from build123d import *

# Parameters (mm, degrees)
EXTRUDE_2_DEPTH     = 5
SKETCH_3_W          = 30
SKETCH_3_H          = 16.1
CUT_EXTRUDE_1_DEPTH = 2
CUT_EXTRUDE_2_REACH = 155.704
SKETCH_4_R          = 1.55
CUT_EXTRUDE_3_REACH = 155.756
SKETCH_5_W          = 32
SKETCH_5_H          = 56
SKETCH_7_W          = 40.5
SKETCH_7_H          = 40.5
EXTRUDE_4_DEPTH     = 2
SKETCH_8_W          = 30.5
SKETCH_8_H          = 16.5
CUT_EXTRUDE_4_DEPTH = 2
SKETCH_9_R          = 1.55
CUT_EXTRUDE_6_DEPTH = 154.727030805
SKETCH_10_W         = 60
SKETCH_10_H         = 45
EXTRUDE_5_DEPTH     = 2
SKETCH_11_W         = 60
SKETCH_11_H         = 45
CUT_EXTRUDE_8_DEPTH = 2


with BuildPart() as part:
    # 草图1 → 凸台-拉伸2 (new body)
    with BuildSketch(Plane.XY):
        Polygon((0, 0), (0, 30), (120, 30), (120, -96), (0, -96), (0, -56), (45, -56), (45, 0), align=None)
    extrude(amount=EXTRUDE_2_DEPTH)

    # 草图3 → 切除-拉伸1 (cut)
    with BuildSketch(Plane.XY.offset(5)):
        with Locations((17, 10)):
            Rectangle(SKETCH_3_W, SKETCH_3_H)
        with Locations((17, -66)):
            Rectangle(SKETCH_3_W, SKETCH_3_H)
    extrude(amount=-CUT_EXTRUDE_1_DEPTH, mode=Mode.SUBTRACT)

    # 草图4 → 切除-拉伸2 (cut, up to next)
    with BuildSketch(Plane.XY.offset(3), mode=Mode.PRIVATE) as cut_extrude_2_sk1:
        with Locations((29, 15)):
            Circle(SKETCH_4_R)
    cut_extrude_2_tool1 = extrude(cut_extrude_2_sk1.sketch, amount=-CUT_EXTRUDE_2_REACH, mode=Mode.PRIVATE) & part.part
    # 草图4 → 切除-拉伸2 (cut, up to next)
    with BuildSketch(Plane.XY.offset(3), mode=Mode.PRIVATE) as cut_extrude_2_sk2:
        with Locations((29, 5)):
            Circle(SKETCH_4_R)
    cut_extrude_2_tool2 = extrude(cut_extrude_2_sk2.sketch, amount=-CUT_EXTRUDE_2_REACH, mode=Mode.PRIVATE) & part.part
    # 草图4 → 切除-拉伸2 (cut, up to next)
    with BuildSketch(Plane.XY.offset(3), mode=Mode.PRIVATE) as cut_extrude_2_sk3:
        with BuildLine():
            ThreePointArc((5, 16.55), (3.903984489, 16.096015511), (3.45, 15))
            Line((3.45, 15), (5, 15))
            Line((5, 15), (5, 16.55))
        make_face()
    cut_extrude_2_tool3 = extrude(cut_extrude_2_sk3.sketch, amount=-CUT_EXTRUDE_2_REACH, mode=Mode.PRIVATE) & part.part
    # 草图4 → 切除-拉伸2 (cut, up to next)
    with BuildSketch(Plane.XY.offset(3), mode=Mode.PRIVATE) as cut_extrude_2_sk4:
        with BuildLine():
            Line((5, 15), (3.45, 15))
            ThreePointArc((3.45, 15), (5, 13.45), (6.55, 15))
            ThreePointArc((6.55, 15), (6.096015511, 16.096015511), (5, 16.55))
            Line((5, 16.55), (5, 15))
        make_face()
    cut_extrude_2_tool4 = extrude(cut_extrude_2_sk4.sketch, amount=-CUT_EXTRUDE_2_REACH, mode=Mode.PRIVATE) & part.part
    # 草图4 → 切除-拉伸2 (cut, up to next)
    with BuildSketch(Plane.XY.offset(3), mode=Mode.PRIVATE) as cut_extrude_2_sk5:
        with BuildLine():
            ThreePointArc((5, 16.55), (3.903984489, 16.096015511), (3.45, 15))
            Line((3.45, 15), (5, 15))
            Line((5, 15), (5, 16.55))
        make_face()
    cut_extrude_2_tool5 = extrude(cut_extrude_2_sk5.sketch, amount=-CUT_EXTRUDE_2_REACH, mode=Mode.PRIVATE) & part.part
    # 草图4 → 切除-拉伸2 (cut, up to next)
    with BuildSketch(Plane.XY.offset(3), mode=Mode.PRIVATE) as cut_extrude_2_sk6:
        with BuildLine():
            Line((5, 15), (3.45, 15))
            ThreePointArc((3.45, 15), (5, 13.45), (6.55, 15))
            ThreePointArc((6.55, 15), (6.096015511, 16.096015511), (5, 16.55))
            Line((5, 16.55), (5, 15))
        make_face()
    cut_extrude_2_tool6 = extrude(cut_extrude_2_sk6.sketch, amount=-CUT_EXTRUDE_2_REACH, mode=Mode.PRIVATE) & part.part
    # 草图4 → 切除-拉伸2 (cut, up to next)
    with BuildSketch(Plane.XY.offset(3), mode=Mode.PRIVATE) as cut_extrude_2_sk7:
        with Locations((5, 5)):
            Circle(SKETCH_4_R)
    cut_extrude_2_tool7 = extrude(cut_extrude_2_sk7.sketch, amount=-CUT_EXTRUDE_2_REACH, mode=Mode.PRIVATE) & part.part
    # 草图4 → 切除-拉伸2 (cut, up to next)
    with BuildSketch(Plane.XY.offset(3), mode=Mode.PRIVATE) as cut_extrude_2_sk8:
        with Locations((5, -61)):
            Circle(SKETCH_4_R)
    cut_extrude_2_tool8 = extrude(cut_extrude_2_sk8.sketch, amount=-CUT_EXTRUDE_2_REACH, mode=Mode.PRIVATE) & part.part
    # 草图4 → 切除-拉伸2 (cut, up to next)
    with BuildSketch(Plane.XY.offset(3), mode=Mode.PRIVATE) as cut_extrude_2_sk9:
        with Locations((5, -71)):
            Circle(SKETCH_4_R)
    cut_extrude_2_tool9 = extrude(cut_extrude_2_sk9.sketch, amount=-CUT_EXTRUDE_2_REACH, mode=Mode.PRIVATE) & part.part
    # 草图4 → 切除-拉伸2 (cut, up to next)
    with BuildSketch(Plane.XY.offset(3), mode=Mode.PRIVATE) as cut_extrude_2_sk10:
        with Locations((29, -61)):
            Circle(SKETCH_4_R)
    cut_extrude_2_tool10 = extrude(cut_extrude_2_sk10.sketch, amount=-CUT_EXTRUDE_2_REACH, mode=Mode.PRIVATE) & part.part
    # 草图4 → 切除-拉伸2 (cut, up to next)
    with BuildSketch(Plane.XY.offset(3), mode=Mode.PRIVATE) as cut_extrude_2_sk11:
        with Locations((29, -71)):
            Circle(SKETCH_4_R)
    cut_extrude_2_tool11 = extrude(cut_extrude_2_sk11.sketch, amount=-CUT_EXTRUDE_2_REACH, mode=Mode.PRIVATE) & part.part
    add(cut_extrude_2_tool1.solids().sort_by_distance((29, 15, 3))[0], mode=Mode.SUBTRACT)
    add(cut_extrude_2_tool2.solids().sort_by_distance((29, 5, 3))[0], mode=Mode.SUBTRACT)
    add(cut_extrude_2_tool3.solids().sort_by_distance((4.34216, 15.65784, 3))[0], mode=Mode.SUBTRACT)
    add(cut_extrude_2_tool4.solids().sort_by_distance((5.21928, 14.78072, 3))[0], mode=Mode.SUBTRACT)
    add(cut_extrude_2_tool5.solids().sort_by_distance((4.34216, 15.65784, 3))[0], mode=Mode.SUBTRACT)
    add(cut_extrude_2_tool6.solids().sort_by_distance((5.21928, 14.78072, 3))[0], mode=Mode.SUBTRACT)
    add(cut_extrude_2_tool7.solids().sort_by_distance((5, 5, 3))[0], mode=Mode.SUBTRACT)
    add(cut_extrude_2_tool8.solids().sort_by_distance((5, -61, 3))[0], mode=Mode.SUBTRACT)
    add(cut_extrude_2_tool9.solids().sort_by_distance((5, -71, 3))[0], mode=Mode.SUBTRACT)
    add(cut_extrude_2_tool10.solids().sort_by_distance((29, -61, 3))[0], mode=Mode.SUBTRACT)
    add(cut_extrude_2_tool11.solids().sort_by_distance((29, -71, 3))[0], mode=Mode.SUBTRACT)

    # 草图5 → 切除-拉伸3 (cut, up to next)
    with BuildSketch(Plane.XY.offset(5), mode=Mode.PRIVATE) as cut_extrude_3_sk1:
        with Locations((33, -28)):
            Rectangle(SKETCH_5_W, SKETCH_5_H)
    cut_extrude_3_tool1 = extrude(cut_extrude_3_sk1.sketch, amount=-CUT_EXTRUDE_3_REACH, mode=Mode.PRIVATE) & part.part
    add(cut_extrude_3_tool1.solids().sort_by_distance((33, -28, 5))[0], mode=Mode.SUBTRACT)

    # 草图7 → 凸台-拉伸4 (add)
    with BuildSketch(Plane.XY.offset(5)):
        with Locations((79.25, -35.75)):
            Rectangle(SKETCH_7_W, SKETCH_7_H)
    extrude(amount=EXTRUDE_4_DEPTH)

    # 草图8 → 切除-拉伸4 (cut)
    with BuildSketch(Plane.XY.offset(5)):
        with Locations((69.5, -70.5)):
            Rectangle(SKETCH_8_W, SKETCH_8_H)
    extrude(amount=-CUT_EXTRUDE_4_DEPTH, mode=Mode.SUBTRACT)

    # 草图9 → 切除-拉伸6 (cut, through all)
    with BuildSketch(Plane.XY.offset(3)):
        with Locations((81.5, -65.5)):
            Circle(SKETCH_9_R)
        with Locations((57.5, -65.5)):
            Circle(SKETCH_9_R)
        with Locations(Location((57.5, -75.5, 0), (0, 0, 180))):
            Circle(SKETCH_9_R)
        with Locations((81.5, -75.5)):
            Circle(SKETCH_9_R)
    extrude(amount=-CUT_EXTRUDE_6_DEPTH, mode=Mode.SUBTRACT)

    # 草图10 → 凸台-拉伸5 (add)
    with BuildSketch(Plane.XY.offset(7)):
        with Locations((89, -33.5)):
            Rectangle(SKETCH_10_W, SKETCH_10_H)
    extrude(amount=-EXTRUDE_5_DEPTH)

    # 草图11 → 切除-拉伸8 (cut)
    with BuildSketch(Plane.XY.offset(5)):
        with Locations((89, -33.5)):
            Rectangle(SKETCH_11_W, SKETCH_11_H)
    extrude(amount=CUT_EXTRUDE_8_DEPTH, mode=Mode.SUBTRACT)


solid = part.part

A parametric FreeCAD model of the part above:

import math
import FreeCAD as App
import Part
import Sketcher
from FreeCAD import Vector
Q = App.Units.Quantity

doc = App.newDocument("Part")
body = doc.addObject("PartDesign::Body", "Body")

# Sketch on XY plane
sketch1 = doc.addObject("Sketcher::SketchObject", "Sketch")
body.addObject(sketch1)
sketch1.AttachmentSupport = (doc.XY_Plane, [""])
sketch1.MapMode = "FlatFace"
sketch1.addGeometry([
    Part.LineSegment(Vector(0, 30, 0), Vector(0, 0, 0)),  # 0
    Part.LineSegment(Vector(0, 0, 0), Vector(45, 0, 0)),  # 1
    Part.LineSegment(Vector(45, 0, 0), Vector(45, -56, 0)),  # 2
    Part.LineSegment(Vector(45, -56, 0), Vector(0, -56, 0)),  # 3
    Part.LineSegment(Vector(0, -56, 0), Vector(0, -96, 0)),  # 4
    Part.LineSegment(Vector(0, -96, 0), Vector(120, -96, 0)),  # 5
    Part.LineSegment(Vector(120, -96, 0), Vector(120, 30, 0)),  # 6
    Part.LineSegment(Vector(120, 30, 0), Vector(0, 30, 0)),  # 7
], False)
sketch1.addConstraint([
    Sketcher.Constraint("Coincident", 0, 2, 1, 1),
    Sketcher.Constraint("Coincident", 1, 2, 2, 1),
    Sketcher.Constraint("Coincident", 2, 2, 3, 1),
    Sketcher.Constraint("Coincident", 3, 2, 4, 1),
    Sketcher.Constraint("Coincident", 4, 2, 5, 1),
    Sketcher.Constraint("Coincident", 5, 2, 6, 1),
    Sketcher.Constraint("Coincident", 6, 2, 7, 1),
    Sketcher.Constraint("Coincident", 7, 2, 0, 1),
    Sketcher.Constraint("Vertical", 0),
    Sketcher.Constraint("Horizontal", 1),
    Sketcher.Constraint("Vertical", 2),
    Sketcher.Constraint("Horizontal", 3),
    Sketcher.Constraint("Vertical", 4),
    Sketcher.Constraint("Horizontal", 5),
    Sketcher.Constraint("Vertical", 6),
    Sketcher.Constraint("Horizontal", 7),
    Sketcher.Constraint("Coincident", 0, 2, -1, 1),
    Sketcher.Constraint("PointOnObject", 3, 2, -2),
    Sketcher.Constraint("DistanceX", 1, 1, 1, 2, Q("45 mm")),
    Sketcher.Constraint("DistanceX", 5, 1, 5, 2, Q("120 mm")),
    Sketcher.Constraint("DistanceY", 0, 2, 0, 1, Q("30 mm")),
    Sketcher.Constraint("DistanceY", 2, 2, 2, 1, Q("56 mm")),
    Sketcher.Constraint("DistanceY", 4, 2, 4, 1, Q("40 mm")),
])
pad1 = doc.addObject("PartDesign::Pad", "Pad")
body.addObject(pad1)
pad1.Profile = sketch1
pad1.Length = 5

# Sketch on XY plane
sketch2 = doc.addObject("Sketcher::SketchObject", "Sketch001")
body.addObject(sketch2)
sketch2.AttachmentSupport = (doc.XY_Plane, [""])
sketch2.MapMode = "FlatFace"
sketch2.AttachmentOffset = App.Placement(Vector(0, 0, 5), App.Rotation())
sketch2.addGeometry([
    Part.LineSegment(Vector(2, 18.05, 0), Vector(2, 1.95, 0)),  # 0
    Part.LineSegment(Vector(2, 1.95, 0), Vector(32, 1.95, 0)),  # 1
    Part.LineSegment(Vector(32, 1.95, 0), Vector(32, 18.05, 0)),  # 2
    Part.LineSegment(Vector(32, 18.05, 0), Vector(2, 18.05, 0)),  # 3
    Part.LineSegment(Vector(2, -57.95, 0), Vector(2, -74.05, 0)),  # 4
    Part.LineSegment(Vector(2, -74.05, 0), Vector(32, -74.05, 0)),  # 5
    Part.LineSegment(Vector(32, -74.05, 0), Vector(32, -57.95, 0)),  # 6
    Part.LineSegment(Vector(32, -57.95, 0), Vector(2, -57.95, 0)),  # 7
], False)
sketch2.addConstraint([
    Sketcher.Constraint("Coincident", 0, 2, 1, 1),
    Sketcher.Constraint("Coincident", 1, 2, 2, 1),
    Sketcher.Constraint("Coincident", 2, 2, 3, 1),
    Sketcher.Constraint("Coincident", 3, 2, 0, 1),
    Sketcher.Constraint("Coincident", 4, 2, 5, 1),
    Sketcher.Constraint("Coincident", 5, 2, 6, 1),
    Sketcher.Constraint("Coincident", 6, 2, 7, 1),
    Sketcher.Constraint("Coincident", 7, 2, 4, 1),
    Sketcher.Constraint("Vertical", 0),
    Sketcher.Constraint("Horizontal", 1),
    Sketcher.Constraint("Vertical", 2),
    Sketcher.Constraint("Horizontal", 3),
    Sketcher.Constraint("Vertical", 4),
    Sketcher.Constraint("Horizontal", 5),
    Sketcher.Constraint("Vertical", 6),
    Sketcher.Constraint("Horizontal", 7),
    Sketcher.Constraint("Vertical", 3, 2, 4, 2),
    Sketcher.Constraint("Vertical", 2, 2, 5, 2),
    Sketcher.Constraint("Equal", 2, 4),
    Sketcher.Constraint("DistanceX", 1, 1, 1, 2, Q("30 mm")),
    Sketcher.Constraint("DistanceY", 0, 2, 0, 1, Q("16.1 mm")),
    Sketcher.Constraint("DistanceX", -1, 1, 0, 2, Q("2 mm")),
    Sketcher.Constraint("DistanceY", 4, 2, 0, 2, Q("76 mm")),
    Sketcher.Constraint("DistanceY", -1, 1, 0, 2, Q("1.95 mm")),
])
pocket1 = doc.addObject("PartDesign::Pocket", "Pocket")
body.addObject(pocket1)
pocket1.Profile = sketch2
pocket1.Length = 2

# Sketch on XY plane
sketch3 = doc.addObject("Sketcher::SketchObject", "Sketch002")
body.addObject(sketch3)
sketch3.AttachmentSupport = (doc.XY_Plane, [""])
sketch3.MapMode = "FlatFace"
sketch3.AttachmentOffset = App.Placement(Vector(0, 0, 3), App.Rotation())
sketch3.addGeometry(Part.Circle(Vector(29, 15, 0), Vector(0, 0, 1), 1.55), False)
sketch3.addConstraint([
    Sketcher.Constraint("Diameter", 0, Q("3.1 mm")),
    Sketcher.Constraint("DistanceX", -1, 1, 0, 3, Q("29 mm")),
    Sketcher.Constraint("DistanceY", -1, 1, 0, 3, Q("15 mm")),
])
pocket2 = doc.addObject("PartDesign::Pocket", "Pocket001")
body.addObject(pocket2)
pocket2.Profile = sketch3
pocket2.Type = "UpToFirst"

# Sketch on XY plane
sketch4 = doc.addObject("Sketcher::SketchObject", "Sketch003")
body.addObject(sketch4)
sketch4.AttachmentSupport = (doc.XY_Plane, [""])
sketch4.MapMode = "FlatFace"
sketch4.AttachmentOffset = App.Placement(Vector(0, 0, 3), App.Rotation())
sketch4.addGeometry(Part.Circle(Vector(29, 5, 0), Vector(0, 0, 1), 1.55), False)
sketch4.addConstraint([
    Sketcher.Constraint("Diameter", 0, Q("3.1 mm")),
    Sketcher.Constraint("DistanceX", -1, 1, 0, 3, Q("29 mm")),
    Sketcher.Constraint("DistanceY", -1, 1, 0, 3, Q("5 mm")),
])
pocket3 = doc.addObject("PartDesign::Pocket", "Pocket002")
body.addObject(pocket3)
pocket3.Profile = sketch4
pocket3.Type = "UpToFirst"

# Sketch on XY plane
sketch5 = doc.addObject("Sketcher::SketchObject", "Sketch004")
body.addObject(sketch5)
sketch5.AttachmentSupport = (doc.XY_Plane, [""])
sketch5.MapMode = "FlatFace"
sketch5.AttachmentOffset = App.Placement(Vector(0, 0, 3), App.Rotation())
sketch5.addGeometry([
    Part.ArcOfCircle(Part.Circle(Vector(5, 15, 0), Vector(0, 0, 1), 1.55), math.radians(90), math.radians(180)),
    Part.LineSegment(Vector(3.45, 15, 0), Vector(5, 15, 0)),
    Part.LineSegment(Vector(5, 15, 0), Vector(5, 16.55, 0)),
], False)
sketch5.addConstraint([
    Sketcher.Constraint("Coincident", 0, 2, 1, 1),
    Sketcher.Constraint("Coincident", 1, 2, 2, 1),
    Sketcher.Constraint("Coincident", 2, 2, 0, 1),
    Sketcher.Constraint("Horizontal", 1),
    Sketcher.Constraint("Vertical", 2),
    Sketcher.Constraint("Coincident", 1, 2, 0, 3),
    Sketcher.Constraint("Radius", 0, Q("1.55 mm")),
    Sketcher.Constraint("DistanceX", -1, 1, 0, 3, Q("5 mm")),
    Sketcher.Constraint("DistanceY", -1, 1, 0, 3, Q("15 mm")),
])
pocket4 = doc.addObject("PartDesign::Pocket", "Pocket003")
body.addObject(pocket4)
pocket4.Profile = sketch5
pocket4.Type = "UpToFirst"

# Sketch on XY plane
sketch6 = doc.addObject("Sketcher::SketchObject", "Sketch005")
body.addObject(sketch6)
sketch6.AttachmentSupport = (doc.XY_Plane, [""])
sketch6.MapMode = "FlatFace"
sketch6.AttachmentOffset = App.Placement(Vector(0, 0, 3), App.Rotation())
sketch6.addGeometry([
    Part.LineSegment(Vector(5, 15, 0), Vector(3.45, 15, 0)),
    Part.ArcOfCircle(Part.Circle(Vector(5, 15, 0), Vector(0, 0, 1), 1.55), math.radians(180), math.radians(360)),
    Part.ArcOfCircle(Part.Circle(Vector(5, 15, 0), Vector(0, 0, 1), 1.55), math.radians(0), math.radians(90)),
    Part.LineSegment(Vector(5, 16.55, 0), Vector(5, 15, 0)),
], False)
sketch6.addConstraint([
    Sketcher.Constraint("Coincident", 0, 2, 1, 1),
    Sketcher.Constraint("Tangent", 1, 2, 2, 1),
    Sketcher.Constraint("Coincident", 2, 2, 3, 1),
    Sketcher.Constraint("Coincident", 3, 2, 0, 1),
    Sketcher.Constraint("Horizontal", 0),
    Sketcher.Constraint("Vertical", 3),
    Sketcher.Constraint("Coincident", 3, 2, 1, 3),
    Sketcher.Constraint("Equal", 1, 2),
    Sketcher.Constraint("Horizontal", 0, 2, 1, 2),
    Sketcher.Constraint("Radius", 1, Q("1.55 mm")),
    Sketcher.Constraint("DistanceX", -1, 1, 1, 3, Q("5 mm")),
    Sketcher.Constraint("DistanceY", -1, 1, 1, 3, Q("15 mm")),
])
pocket5 = doc.addObject("PartDesign::Pocket", "Pocket004")
body.addObject(pocket5)
pocket5.Profile = sketch6
pocket5.Type = "UpToFirst"

# Sketch on XY plane
sketch7 = doc.addObject("Sketcher::SketchObject", "Sketch006")
body.addObject(sketch7)
sketch7.AttachmentSupport = (doc.XY_Plane, [""])
sketch7.MapMode = "FlatFace"
sketch7.AttachmentOffset = App.Placement(Vector(0, 0, 3), App.Rotation())
sketch7.addGeometry([
    Part.ArcOfCircle(Part.Circle(Vector(5, 15, 0), Vector(0, 0, 1), 1.55), math.radians(90), math.radians(180)),
    Part.LineSegment(Vector(3.45, 15, 0), Vector(5, 15, 0)),
    Part.LineSegment(Vector(5, 15, 0), Vector(5, 16.55, 0)),
], False)
sketch7.addConstraint([
    Sketcher.Constraint("Coincident", 0, 2, 1, 1),
    Sketcher.Constraint("Coincident", 1, 2, 2, 1),
    Sketcher.Constraint("Coincident", 2, 2, 0, 1),
    Sketcher.Constraint("Horizontal", 1),
    Sketcher.Constraint("Vertical", 2),
    Sketcher.Constraint("Coincident", 1, 2, 0, 3),
    Sketcher.Constraint("Radius", 0, Q("1.55 mm")),
    Sketcher.Constraint("DistanceX", -1, 1, 0, 3, Q("5 mm")),
    Sketcher.Constraint("DistanceY", -1, 1, 0, 3, Q("15 mm")),
])
pocket6 = doc.addObject("PartDesign::Pocket", "Pocket005")
body.addObject(pocket6)
pocket6.Profile = sketch7
pocket6.Length = 3

# Sketch on XY plane
sketch8 = doc.addObject("Sketcher::SketchObject", "Sketch007")
body.addObject(sketch8)
sketch8.AttachmentSupport = (doc.XY_Plane, [""])
sketch8.MapMode = "FlatFace"
sketch8.AttachmentOffset = App.Placement(Vector(0, 0, 3), App.Rotation())
sketch8.addGeometry([
    Part.LineSegment(Vector(5, 15, 0), Vector(3.45, 15, 0)),
    Part.ArcOfCircle(Part.Circle(Vector(5, 15, 0), Vector(0, 0, 1), 1.55), math.radians(180), math.radians(360)),
    Part.ArcOfCircle(Part.Circle(Vector(5, 15, 0), Vector(0, 0, 1), 1.55), math.radians(0), math.radians(90)),
    Part.LineSegment(Vector(5, 16.55, 0), Vector(5, 15, 0)),
], False)
sketch8.addConstraint([
    Sketcher.Constraint("Coincident", 0, 2, 1, 1),
    Sketcher.Constraint("Tangent", 1, 2, 2, 1),
    Sketcher.Constraint("Coincident", 2, 2, 3, 1),
    Sketcher.Constraint("Coincident", 3, 2, 0, 1),
    Sketcher.Constraint("Horizontal", 0),
    Sketcher.Constraint("Vertical", 3),
    Sketcher.Constraint("Coincident", 3, 2, 1, 3),
    Sketcher.Constraint("Equal", 1, 2),
    Sketcher.Constraint("Horizontal", 0, 2, 1, 2),
    Sketcher.Constraint("Radius", 1, Q("1.55 mm")),
    Sketcher.Constraint("DistanceX", -1, 1, 1, 3, Q("5 mm")),
    Sketcher.Constraint("DistanceY", -1, 1, 1, 3, Q("15 mm")),
])
pocket7 = doc.addObject("PartDesign::Pocket", "Pocket006")
body.addObject(pocket7)
pocket7.Profile = sketch8
pocket7.Length = 3

# Sketch on XY plane
sketch9 = doc.addObject("Sketcher::SketchObject", "Sketch008")
body.addObject(sketch9)
sketch9.AttachmentSupport = (doc.XY_Plane, [""])
sketch9.MapMode = "FlatFace"
sketch9.AttachmentOffset = App.Placement(Vector(0, 0, 3), App.Rotation())
sketch9.addGeometry(Part.Circle(Vector(5, 5, 0), Vector(0, 0, 1), 1.55), False)
sketch9.addConstraint([
    Sketcher.Constraint("Diameter", 0, Q("3.1 mm")),
    Sketcher.Constraint("DistanceX", -1, 1, 0, 3, Q("5 mm")),
    Sketcher.Constraint("DistanceY", -1, 1, 0, 3, Q("5 mm")),
])
pocket8 = doc.addObject("PartDesign::Pocket", "Pocket007")
body.addObject(pocket8)
pocket8.Profile = sketch9
pocket8.Type = "UpToFirst"

# Sketch on XY plane
sketch10 = doc.addObject("Sketcher::SketchObject", "Sketch009")
body.addObject(sketch10)
sketch10.AttachmentSupport = (doc.XY_Plane, [""])
sketch10.MapMode = "FlatFace"
sketch10.AttachmentOffset = App.Placement(Vector(0, 0, 3), App.Rotation())
sketch10.addGeometry(Part.Circle(Vector(5, -61, 0), Vector(0, 0, 1), 1.55), False)
sketch10.addConstraint([
    Sketcher.Constraint("Diameter", 0, Q("3.1 mm")),
    Sketcher.Constraint("DistanceX", -1, 1, 0, 3, Q("5 mm")),
    Sketcher.Constraint("DistanceY", 0, 3, -1, 1, Q("61 mm")),
])
pocket9 = doc.addObject("PartDesign::Pocket", "Pocket008")
body.addObject(pocket9)
pocket9.Profile = sketch10
pocket9.Type = "UpToFirst"

# Sketch on XY plane
sketch11 = doc.addObject("Sketcher::SketchObject", "Sketch010")
body.addObject(sketch11)
sketch11.AttachmentSupport = (doc.XY_Plane, [""])
sketch11.MapMode = "FlatFace"
sketch11.AttachmentOffset = App.Placement(Vector(0, 0, 3), App.Rotation())
sketch11.addGeometry(Part.Circle(Vector(5, -71, 0), Vector(0, 0, 1), 1.55), False)
sketch11.addConstraint([
    Sketcher.Constraint("Diameter", 0, Q("3.1 mm")),
    Sketcher.Constraint("DistanceX", -1, 1, 0, 3, Q("5 mm")),
    Sketcher.Constraint("DistanceY", 0, 3, -1, 1, Q("71 mm")),
])
pocket10 = doc.addObject("PartDesign::Pocket", "Pocket009")
body.addObject(pocket10)
pocket10.Profile = sketch11
pocket10.Type = "UpToFirst"

# Sketch on XY plane
sketch12 = doc.addObject("Sketcher::SketchObject", "Sketch011")
body.addObject(sketch12)
sketch12.AttachmentSupport = (doc.XY_Plane, [""])
sketch12.MapMode = "FlatFace"
sketch12.AttachmentOffset = App.Placement(Vector(0, 0, 3), App.Rotation())
sketch12.addGeometry(Part.Circle(Vector(29, -61, 0), Vector(0, 0, 1), 1.55), False)
sketch12.addConstraint([
    Sketcher.Constraint("Diameter", 0, Q("3.1 mm")),
    Sketcher.Constraint("DistanceX", -1, 1, 0, 3, Q("29 mm")),
    Sketcher.Constraint("DistanceY", 0, 3, -1, 1, Q("61 mm")),
])
pocket11 = doc.addObject("PartDesign::Pocket", "Pocket010")
body.addObject(pocket11)
pocket11.Profile = sketch12
pocket11.Type = "UpToFirst"

# Sketch on XY plane
sketch13 = doc.addObject("Sketcher::SketchObject", "Sketch012")
body.addObject(sketch13)
sketch13.AttachmentSupport = (doc.XY_Plane, [""])
sketch13.MapMode = "FlatFace"
sketch13.AttachmentOffset = App.Placement(Vector(0, 0, 3), App.Rotation())
sketch13.addGeometry(Part.Circle(Vector(29, -71, 0), Vector(0, 0, 1), 1.55), False)
sketch13.addConstraint([
    Sketcher.Constraint("Diameter", 0, Q("3.1 mm")),
    Sketcher.Constraint("DistanceX", -1, 1, 0, 3, Q("29 mm")),
    Sketcher.Constraint("DistanceY", 0, 3, -1, 1, Q("71 mm")),
])
pocket12 = doc.addObject("PartDesign::Pocket", "Pocket011")
body.addObject(pocket12)
pocket12.Profile = sketch13
pocket12.Type = "UpToFirst"

# Sketch on XY plane
sketch14 = doc.addObject("Sketcher::SketchObject", "Sketch013")
body.addObject(sketch14)
sketch14.AttachmentSupport = (doc.XY_Plane, [""])
sketch14.MapMode = "FlatFace"
sketch14.AttachmentOffset = App.Placement(Vector(0, 0, 5), App.Rotation())
sketch14.addGeometry([
    Part.LineSegment(Vector(17, 0, 0), Vector(17, -56, 0)),
    Part.LineSegment(Vector(17, -56, 0), Vector(49, -56, 0)),
    Part.LineSegment(Vector(49, -56, 0), Vector(49, 0, 0)),
    Part.LineSegment(Vector(49, 0, 0), Vector(17, 0, 0)),
], False)
sketch14.addConstraint([
    Sketcher.Constraint("Coincident", 0, 2, 1, 1),
    Sketcher.Constraint("Coincident", 1, 2, 2, 1),
    Sketcher.Constraint("Coincident", 2, 2, 3, 1),
    Sketcher.Constraint("Coincident", 3, 2, 0, 1),
    Sketcher.Constraint("Vertical", 0),
    Sketcher.Constraint("Horizontal", 1),
    Sketcher.Constraint("Vertical", 2),
    Sketcher.Constraint("Horizontal", 3),
    Sketcher.Constraint("PointOnObject", 2, 2, -1),
    Sketcher.Constraint("DistanceX", 1, 1, 1, 2, Q("32 mm")),
    Sketcher.Constraint("DistanceY", 0, 2, 0, 1, Q("56 mm")),
    Sketcher.Constraint("DistanceX", -1, 1, 0, 2, Q("17 mm")),
])
pocket13 = doc.addObject("PartDesign::Pocket", "Pocket012")
body.addObject(pocket13)
pocket13.Profile = sketch14
pocket13.Length = 5

# Sketch on XY plane
sketch15 = doc.addObject("Sketcher::SketchObject", "Sketch014")
body.addObject(sketch15)
sketch15.AttachmentSupport = (doc.XY_Plane, [""])
sketch15.MapMode = "FlatFace"
sketch15.AttachmentOffset = App.Placement(Vector(0, 0, 5), App.Rotation())
sketch15.addGeometry([
    Part.LineSegment(Vector(59, -15.5, 0), Vector(59, -56, 0)),
    Part.LineSegment(Vector(59, -56, 0), Vector(99.5, -56, 0)),
    Part.LineSegment(Vector(99.5, -56, 0), Vector(99.5, -15.5, 0)),
    Part.LineSegment(Vector(99.5, -15.5, 0), Vector(59, -15.5, 0)),
], False)
sketch15.addConstraint([
    Sketcher.Constraint("Coincident", 0, 2, 1, 1),
    Sketcher.Constraint("Coincident", 1, 2, 2, 1),
    Sketcher.Constraint("Coincident", 2, 2, 3, 1),
    Sketcher.Constraint("Coincident", 3, 2, 0, 1),
    Sketcher.Constraint("Vertical", 0),
    Sketcher.Constraint("Horizontal", 1),
    Sketcher.Constraint("Vertical", 2),
    Sketcher.Constraint("Horizontal", 3),
    Sketcher.Constraint("Equal", 3, 0),
    Sketcher.Constraint("DistanceX", 1, 1, 1, 2, Q("40.5 mm")),
    Sketcher.Constraint("DistanceX", -1, 1, 0, 2, Q("59 mm")),
    Sketcher.Constraint("DistanceY", 0, 2, -1, 1, Q("56 mm")),
])
pad2 = doc.addObject("PartDesign::Pad", "Pad001")
body.addObject(pad2)
pad2.Profile = sketch15
pad2.Length = 2

# Sketch on XY plane
sketch16 = doc.addObject("Sketcher::SketchObject", "Sketch015")
body.addObject(sketch16)
sketch16.AttachmentSupport = (doc.XY_Plane, [""])
sketch16.MapMode = "FlatFace"
sketch16.AttachmentOffset = App.Placement(Vector(0, 0, 5), App.Rotation())
sketch16.addGeometry([
    Part.LineSegment(Vector(54.25, -62.25, 0), Vector(54.25, -78.75, 0)),
    Part.LineSegment(Vector(54.25, -78.75, 0), Vector(84.75, -78.75, 0)),
    Part.LineSegment(Vector(84.75, -78.75, 0), Vector(84.75, -62.25, 0)),
    Part.LineSegment(Vector(84.75, -62.25, 0), Vector(54.25, -62.25, 0)),
], False)
sketch16.addConstraint([
    Sketcher.Constraint("Coincident", 0, 2, 1, 1),
    Sketcher.Constraint("Coincident", 1, 2, 2, 1),
    Sketcher.Constraint("Coincident", 2, 2, 3, 1),
    Sketcher.Constraint("Coincident", 3, 2, 0, 1),
    Sketcher.Constraint("Vertical", 0),
    Sketcher.Constraint("Horizontal", 1),
    Sketcher.Constraint("Vertical", 2),
    Sketcher.Constraint("Horizontal", 3),
    Sketcher.Constraint("DistanceX", 1, 1, 1, 2, Q("30.5 mm")),
    Sketcher.Constraint("DistanceY", 0, 2, 0, 1, Q("16.5 mm")),
    Sketcher.Constraint("DistanceX", -1, 1, 0, 2, Q("54.25 mm")),
    Sketcher.Constraint("DistanceY", 0, 2, -1, 1, Q("78.75 mm")),
])
pocket14 = doc.addObject("PartDesign::Pocket", "Pocket013")
body.addObject(pocket14)
pocket14.Profile = sketch16
pocket14.Length = 2

# Sketch on XY plane
sketch17 = doc.addObject("Sketcher::SketchObject", "Sketch016")
body.addObject(sketch17)
sketch17.AttachmentSupport = (doc.XY_Plane, [""])
sketch17.MapMode = "FlatFace"
sketch17.AttachmentOffset = App.Placement(Vector(0, 0, 3), App.Rotation())
sketch17.addGeometry([
    Part.Circle(Vector(81.5, -65.5, 0), Vector(0, 0, 1), 1.55),
    Part.Circle(Vector(57.5, -65.5, 0), Vector(0, 0, 1), 1.55),
    Part.Circle(Vector(57.5, -75.5, 0), Vector(0, 0, 1), 1.55),
    Part.Circle(Vector(81.5, -75.5, 0), Vector(0, 0, 1), 1.55),
], False)
sketch17.addConstraint([
    Sketcher.Constraint("Equal", 0, 1),
    Sketcher.Constraint("Equal", 1, 2),
    Sketcher.Constraint("Equal", 2, 3),
    Sketcher.Constraint("Horizontal", 0, 3, 1, 3),
    Sketcher.Constraint("Horizontal", 2, 3, 3, 3),
    Sketcher.Constraint("Vertical", 1, 3, 2, 3),
    Sketcher.Constraint("Vertical", 0, 3, 3, 3),
    Sketcher.Constraint("Diameter", 0, Q("3.1 mm")),
    Sketcher.Constraint("DistanceX", 1, 3, 0, 3, Q("24 mm")),
    Sketcher.Constraint("DistanceY", 2, 3, 1, 3, Q("10 mm")),
    Sketcher.Constraint("DistanceX", -1, 1, 0, 3, Q("81.5 mm")),
    Sketcher.Constraint("DistanceY", 0, 3, -1, 1, Q("65.5 mm")),
])
pocket15 = doc.addObject("PartDesign::Pocket", "Pocket014")
body.addObject(pocket15)
pocket15.Profile = sketch17
pocket15.Type = "ThroughAll"

# Sketch on XY plane
sketch18 = doc.addObject("Sketcher::SketchObject", "Sketch017")
body.addObject(sketch18)
sketch18.AttachmentSupport = (doc.XY_Plane, [""])
sketch18.MapMode = "FlatFace"
sketch18.AttachmentOffset = App.Placement(Vector(0, 0, 7), App.Rotation())
sketch18.addGeometry([
    Part.LineSegment(Vector(59, -11, 0), Vector(59, -56, 0)),
    Part.LineSegment(Vector(59, -56, 0), Vector(119, -56, 0)),
    Part.LineSegment(Vector(119, -56, 0), Vector(119, -11, 0)),
    Part.LineSegment(Vector(119, -11, 0), Vector(59, -11, 0)),
], False)
sketch18.addConstraint([
    Sketcher.Constraint("Coincident", 0, 2, 1, 1),
    Sketcher.Constraint("Coincident", 1, 2, 2, 1),
    Sketcher.Constraint("Coincident", 2, 2, 3, 1),
    Sketcher.Constraint("Coincident", 3, 2, 0, 1),
    Sketcher.Constraint("Vertical", 0),
    Sketcher.Constraint("Horizontal", 1),
    Sketcher.Constraint("Vertical", 2),
    Sketcher.Constraint("Horizontal", 3),
    Sketcher.Constraint("DistanceX", 1, 1, 1, 2, Q("60 mm")),
    Sketcher.Constraint("DistanceY", 0, 2, 0, 1, Q("45 mm")),
    Sketcher.Constraint("DistanceX", -1, 1, 0, 2, Q("59 mm")),
    Sketcher.Constraint("DistanceY", 0, 2, -1, 1, Q("56 mm")),
])
pad3 = doc.addObject("PartDesign::Pad", "Pad002")
body.addObject(pad3)
pad3.Profile = sketch18
pad3.Length = 2
pad3.Reversed = True

# Sketch on XY plane
sketch19 = doc.addObject("Sketcher::SketchObject", "Sketch018")
body.addObject(sketch19)
sketch19.AttachmentSupport = (doc.XY_Plane, [""])
sketch19.MapMode = "FlatFace"
sketch19.AttachmentOffset = App.Placement(Vector(0, 0, 5), App.Rotation())
sketch19.addGeometry([
    Part.LineSegment(Vector(59, -11, 0), Vector(59, -56, 0)),
    Part.LineSegment(Vector(59, -56, 0), Vector(119, -56, 0)),
    Part.LineSegment(Vector(119, -56, 0), Vector(119, -11, 0)),
    Part.LineSegment(Vector(119, -11, 0), Vector(59, -11, 0)),
], False)
sketch19.addConstraint([
    Sketcher.Constraint("Coincident", 0, 2, 1, 1),
    Sketcher.Constraint("Coincident", 1, 2, 2, 1),
    Sketcher.Constraint("Coincident", 2, 2, 3, 1),
    Sketcher.Constraint("Coincident", 3, 2, 0, 1),
    Sketcher.Constraint("Vertical", 0),
    Sketcher.Constraint("Horizontal", 1),
    Sketcher.Constraint("Vertical", 2),
    Sketcher.Constraint("Horizontal", 3),
    Sketcher.Constraint("DistanceX", 1, 1, 1, 2, Q("60 mm")),
    Sketcher.Constraint("DistanceY", 0, 2, 0, 1, Q("45 mm")),
    Sketcher.Constraint("DistanceX", -1, 1, 0, 2, Q("59 mm")),
    Sketcher.Constraint("DistanceY", 0, 2, -1, 1, Q("56 mm")),
])
pocket16 = doc.addObject("PartDesign::Pocket", "Pocket015")
body.addObject(pocket16)
pocket16.Profile = sketch19
pocket16.Length = 2
pocket16.Reversed = True

doc.recompute()
